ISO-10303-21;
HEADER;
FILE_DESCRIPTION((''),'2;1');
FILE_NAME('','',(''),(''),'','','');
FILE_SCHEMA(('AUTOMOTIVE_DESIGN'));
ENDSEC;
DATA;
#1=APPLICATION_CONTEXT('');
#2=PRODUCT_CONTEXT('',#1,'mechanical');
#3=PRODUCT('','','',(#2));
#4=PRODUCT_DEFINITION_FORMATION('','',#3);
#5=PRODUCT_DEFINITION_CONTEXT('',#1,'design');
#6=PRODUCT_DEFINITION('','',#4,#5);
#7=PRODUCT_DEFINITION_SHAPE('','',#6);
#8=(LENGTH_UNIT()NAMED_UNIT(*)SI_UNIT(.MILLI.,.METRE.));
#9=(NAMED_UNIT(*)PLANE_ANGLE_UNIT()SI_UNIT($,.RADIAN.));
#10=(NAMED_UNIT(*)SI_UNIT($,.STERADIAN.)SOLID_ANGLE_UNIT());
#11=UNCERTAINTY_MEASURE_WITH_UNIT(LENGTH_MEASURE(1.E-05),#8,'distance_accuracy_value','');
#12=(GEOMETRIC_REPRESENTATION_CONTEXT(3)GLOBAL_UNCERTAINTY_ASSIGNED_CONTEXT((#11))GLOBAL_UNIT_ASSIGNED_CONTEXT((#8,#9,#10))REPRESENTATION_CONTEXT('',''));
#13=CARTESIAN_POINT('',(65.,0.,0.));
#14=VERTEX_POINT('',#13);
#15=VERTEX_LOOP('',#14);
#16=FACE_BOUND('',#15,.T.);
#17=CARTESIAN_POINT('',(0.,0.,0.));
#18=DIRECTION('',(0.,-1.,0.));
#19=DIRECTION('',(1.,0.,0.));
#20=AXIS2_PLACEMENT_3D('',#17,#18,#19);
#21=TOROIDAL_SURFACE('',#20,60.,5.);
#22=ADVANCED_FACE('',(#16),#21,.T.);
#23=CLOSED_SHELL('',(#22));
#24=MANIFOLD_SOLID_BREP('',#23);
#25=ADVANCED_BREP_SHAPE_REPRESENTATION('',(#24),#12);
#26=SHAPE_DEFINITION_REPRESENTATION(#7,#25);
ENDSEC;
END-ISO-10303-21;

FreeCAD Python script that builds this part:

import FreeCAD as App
import Part
import Sketcher

V = App.Vector
Q = App.Units.Quantity

doc = App.newDocument("Part")
body = doc.addObject("PartDesign::Body", "Body")

sketch1 = body.newObject("Sketcher::SketchObject", "Sketch")
sketch1.AttachmentSupport = (doc.getObject("XY_Plane"), [""])
sketch1.MapMode = "FlatFace"
sketch1.addGeometry(Part.Circle(V(-60, 0, 0), V(0, 0, 1), 5), False)
sketch1.addConstraint([
    Sketcher.Constraint("PointOnObject", 0, 3, -1),
    Sketcher.Constraint("Diameter", 0, Q("10 mm")),
    Sketcher.Constraint("DistanceX", 0, 3, -1, 1, Q("60 mm")),
])
revolution = body.newObject("PartDesign::Revolution", "Revolution")
revolution.Profile = sketch1
revolution.ReferenceAxis = (sketch1, ["V_Axis"])
revolution.Angle = 360

doc.recompute()
